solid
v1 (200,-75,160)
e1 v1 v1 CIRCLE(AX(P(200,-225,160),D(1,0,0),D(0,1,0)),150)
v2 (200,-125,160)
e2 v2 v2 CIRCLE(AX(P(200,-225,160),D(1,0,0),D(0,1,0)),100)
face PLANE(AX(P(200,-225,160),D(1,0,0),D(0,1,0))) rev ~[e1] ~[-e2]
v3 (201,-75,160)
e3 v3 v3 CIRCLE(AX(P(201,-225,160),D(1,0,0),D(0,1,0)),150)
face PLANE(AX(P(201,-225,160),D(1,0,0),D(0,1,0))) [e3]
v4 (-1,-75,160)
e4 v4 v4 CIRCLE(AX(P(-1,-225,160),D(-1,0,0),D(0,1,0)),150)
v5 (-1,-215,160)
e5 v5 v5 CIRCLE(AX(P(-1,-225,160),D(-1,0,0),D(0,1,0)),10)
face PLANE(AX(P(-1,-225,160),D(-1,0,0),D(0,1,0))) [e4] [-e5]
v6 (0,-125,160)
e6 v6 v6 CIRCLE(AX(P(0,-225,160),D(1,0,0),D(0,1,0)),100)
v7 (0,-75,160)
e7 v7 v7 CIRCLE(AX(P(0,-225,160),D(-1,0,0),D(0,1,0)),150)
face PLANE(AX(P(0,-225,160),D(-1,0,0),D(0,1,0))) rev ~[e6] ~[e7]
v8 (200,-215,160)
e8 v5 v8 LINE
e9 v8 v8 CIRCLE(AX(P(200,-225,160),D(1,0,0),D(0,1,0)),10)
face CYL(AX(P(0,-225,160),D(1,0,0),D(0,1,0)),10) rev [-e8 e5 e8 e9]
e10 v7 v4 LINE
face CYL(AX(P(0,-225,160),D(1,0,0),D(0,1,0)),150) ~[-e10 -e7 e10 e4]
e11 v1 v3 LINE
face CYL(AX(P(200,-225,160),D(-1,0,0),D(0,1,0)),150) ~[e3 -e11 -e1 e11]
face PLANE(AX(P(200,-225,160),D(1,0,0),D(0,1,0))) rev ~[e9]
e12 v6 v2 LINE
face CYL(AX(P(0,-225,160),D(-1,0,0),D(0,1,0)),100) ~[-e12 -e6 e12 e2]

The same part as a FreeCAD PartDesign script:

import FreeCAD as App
import Part
import Sketcher

V = App.Vector
Q = App.Units.Quantity

doc = App.newDocument("Part")
body = doc.addObject("PartDesign::Body", "Body")

sketch1 = body.newObject("Sketcher::SketchObject", "Sketch")
sketch1.AttachmentSupport = (doc.getObject("YZ_Plane"), [""])
sketch1.MapMode = "FlatFace"
sketch1.addGeometry([
    Part.Circle(V(0, 0, 0), V(0, 0, 1), 100),
    Part.Circle(V(0, 0, 0), V(0, 0, 1), 10),
], False)
sketch1.addConstraint([
    Sketcher.Constraint("Coincident", 0, 3, -1, 1),
    Sketcher.Constraint("Coincident", 1, 3, -1, 1),
    Sketcher.Constraint("Diameter", 0, Q("200 mm")),
    Sketcher.Constraint("Diameter", 1, Q("20 mm")),
])
pad1 = body.newObject("PartDesign::Pad", "Pad")
pad1.Profile = sketch1
pad1.Length = 200

sketch2 = body.newObject("Sketcher::SketchObject", "Sketch001")
sketch2.AttachmentSupport = (doc.getObject("YZ_Plane"), [""])
sketch2.MapMode = "FlatFace"
sketch2.addGeometry([
    Part.Circle(V(0, 0, 0), V(0, 0, 1), 150),
    Part.Circle(V(0, 0, 0), V(0, 0, 1), 10),
], False)
sketch2.addConstraint([
    Sketcher.Constraint("Coincident", 0, 3, -1, 1),
    Sketcher.Constraint("Coincident", 1, 3, -1, 1),
    Sketcher.Constraint("Diameter", 0, Q("300 mm")),
    Sketcher.Constraint("Diameter", 1, Q("20 mm")),
])
pad2 = body.newObject("PartDesign::Pad", "Pad001")
pad2.Profile = sketch2
pad2.Length = 1
pad2.Reversed = True

sketch3 = body.newObject("Sketcher::SketchObject", "Sketch002")
sketch3.AttachmentSupport = (doc.getObject("YZ_Plane"), [""])
sketch3.MapMode = "FlatFace"
sketch3.AttachmentOffset = App.Placement(V(0, 0, 200), App.Rotation())
sketch3.addGeometry(Part.Circle(V(0, 0, 0), V(0, 0, 1), 150), False)
sketch3.addConstraint([
    Sketcher.Constraint("Coincident", 0, 3, -1, 1),
    Sketcher.Constraint("Diameter", 0, Q("300 mm")),
])
pad3 = body.newObject("PartDesign::Pad", "Pad002")
pad3.Profile = sketch3
pad3.Length = 1
body2 = doc.addObject("PartDesign::Body", "Body001")
doc.recompute()

body.Placement = App.Placement(V(0, -225, 160), App.Rotation(V(0, 0, 1), 0))
boolean = body2.newObject("PartDesign::Boolean", "Boolean")
boolean.Type = "Fuse"
boolean.addObjects([body])

doc.recompute()
